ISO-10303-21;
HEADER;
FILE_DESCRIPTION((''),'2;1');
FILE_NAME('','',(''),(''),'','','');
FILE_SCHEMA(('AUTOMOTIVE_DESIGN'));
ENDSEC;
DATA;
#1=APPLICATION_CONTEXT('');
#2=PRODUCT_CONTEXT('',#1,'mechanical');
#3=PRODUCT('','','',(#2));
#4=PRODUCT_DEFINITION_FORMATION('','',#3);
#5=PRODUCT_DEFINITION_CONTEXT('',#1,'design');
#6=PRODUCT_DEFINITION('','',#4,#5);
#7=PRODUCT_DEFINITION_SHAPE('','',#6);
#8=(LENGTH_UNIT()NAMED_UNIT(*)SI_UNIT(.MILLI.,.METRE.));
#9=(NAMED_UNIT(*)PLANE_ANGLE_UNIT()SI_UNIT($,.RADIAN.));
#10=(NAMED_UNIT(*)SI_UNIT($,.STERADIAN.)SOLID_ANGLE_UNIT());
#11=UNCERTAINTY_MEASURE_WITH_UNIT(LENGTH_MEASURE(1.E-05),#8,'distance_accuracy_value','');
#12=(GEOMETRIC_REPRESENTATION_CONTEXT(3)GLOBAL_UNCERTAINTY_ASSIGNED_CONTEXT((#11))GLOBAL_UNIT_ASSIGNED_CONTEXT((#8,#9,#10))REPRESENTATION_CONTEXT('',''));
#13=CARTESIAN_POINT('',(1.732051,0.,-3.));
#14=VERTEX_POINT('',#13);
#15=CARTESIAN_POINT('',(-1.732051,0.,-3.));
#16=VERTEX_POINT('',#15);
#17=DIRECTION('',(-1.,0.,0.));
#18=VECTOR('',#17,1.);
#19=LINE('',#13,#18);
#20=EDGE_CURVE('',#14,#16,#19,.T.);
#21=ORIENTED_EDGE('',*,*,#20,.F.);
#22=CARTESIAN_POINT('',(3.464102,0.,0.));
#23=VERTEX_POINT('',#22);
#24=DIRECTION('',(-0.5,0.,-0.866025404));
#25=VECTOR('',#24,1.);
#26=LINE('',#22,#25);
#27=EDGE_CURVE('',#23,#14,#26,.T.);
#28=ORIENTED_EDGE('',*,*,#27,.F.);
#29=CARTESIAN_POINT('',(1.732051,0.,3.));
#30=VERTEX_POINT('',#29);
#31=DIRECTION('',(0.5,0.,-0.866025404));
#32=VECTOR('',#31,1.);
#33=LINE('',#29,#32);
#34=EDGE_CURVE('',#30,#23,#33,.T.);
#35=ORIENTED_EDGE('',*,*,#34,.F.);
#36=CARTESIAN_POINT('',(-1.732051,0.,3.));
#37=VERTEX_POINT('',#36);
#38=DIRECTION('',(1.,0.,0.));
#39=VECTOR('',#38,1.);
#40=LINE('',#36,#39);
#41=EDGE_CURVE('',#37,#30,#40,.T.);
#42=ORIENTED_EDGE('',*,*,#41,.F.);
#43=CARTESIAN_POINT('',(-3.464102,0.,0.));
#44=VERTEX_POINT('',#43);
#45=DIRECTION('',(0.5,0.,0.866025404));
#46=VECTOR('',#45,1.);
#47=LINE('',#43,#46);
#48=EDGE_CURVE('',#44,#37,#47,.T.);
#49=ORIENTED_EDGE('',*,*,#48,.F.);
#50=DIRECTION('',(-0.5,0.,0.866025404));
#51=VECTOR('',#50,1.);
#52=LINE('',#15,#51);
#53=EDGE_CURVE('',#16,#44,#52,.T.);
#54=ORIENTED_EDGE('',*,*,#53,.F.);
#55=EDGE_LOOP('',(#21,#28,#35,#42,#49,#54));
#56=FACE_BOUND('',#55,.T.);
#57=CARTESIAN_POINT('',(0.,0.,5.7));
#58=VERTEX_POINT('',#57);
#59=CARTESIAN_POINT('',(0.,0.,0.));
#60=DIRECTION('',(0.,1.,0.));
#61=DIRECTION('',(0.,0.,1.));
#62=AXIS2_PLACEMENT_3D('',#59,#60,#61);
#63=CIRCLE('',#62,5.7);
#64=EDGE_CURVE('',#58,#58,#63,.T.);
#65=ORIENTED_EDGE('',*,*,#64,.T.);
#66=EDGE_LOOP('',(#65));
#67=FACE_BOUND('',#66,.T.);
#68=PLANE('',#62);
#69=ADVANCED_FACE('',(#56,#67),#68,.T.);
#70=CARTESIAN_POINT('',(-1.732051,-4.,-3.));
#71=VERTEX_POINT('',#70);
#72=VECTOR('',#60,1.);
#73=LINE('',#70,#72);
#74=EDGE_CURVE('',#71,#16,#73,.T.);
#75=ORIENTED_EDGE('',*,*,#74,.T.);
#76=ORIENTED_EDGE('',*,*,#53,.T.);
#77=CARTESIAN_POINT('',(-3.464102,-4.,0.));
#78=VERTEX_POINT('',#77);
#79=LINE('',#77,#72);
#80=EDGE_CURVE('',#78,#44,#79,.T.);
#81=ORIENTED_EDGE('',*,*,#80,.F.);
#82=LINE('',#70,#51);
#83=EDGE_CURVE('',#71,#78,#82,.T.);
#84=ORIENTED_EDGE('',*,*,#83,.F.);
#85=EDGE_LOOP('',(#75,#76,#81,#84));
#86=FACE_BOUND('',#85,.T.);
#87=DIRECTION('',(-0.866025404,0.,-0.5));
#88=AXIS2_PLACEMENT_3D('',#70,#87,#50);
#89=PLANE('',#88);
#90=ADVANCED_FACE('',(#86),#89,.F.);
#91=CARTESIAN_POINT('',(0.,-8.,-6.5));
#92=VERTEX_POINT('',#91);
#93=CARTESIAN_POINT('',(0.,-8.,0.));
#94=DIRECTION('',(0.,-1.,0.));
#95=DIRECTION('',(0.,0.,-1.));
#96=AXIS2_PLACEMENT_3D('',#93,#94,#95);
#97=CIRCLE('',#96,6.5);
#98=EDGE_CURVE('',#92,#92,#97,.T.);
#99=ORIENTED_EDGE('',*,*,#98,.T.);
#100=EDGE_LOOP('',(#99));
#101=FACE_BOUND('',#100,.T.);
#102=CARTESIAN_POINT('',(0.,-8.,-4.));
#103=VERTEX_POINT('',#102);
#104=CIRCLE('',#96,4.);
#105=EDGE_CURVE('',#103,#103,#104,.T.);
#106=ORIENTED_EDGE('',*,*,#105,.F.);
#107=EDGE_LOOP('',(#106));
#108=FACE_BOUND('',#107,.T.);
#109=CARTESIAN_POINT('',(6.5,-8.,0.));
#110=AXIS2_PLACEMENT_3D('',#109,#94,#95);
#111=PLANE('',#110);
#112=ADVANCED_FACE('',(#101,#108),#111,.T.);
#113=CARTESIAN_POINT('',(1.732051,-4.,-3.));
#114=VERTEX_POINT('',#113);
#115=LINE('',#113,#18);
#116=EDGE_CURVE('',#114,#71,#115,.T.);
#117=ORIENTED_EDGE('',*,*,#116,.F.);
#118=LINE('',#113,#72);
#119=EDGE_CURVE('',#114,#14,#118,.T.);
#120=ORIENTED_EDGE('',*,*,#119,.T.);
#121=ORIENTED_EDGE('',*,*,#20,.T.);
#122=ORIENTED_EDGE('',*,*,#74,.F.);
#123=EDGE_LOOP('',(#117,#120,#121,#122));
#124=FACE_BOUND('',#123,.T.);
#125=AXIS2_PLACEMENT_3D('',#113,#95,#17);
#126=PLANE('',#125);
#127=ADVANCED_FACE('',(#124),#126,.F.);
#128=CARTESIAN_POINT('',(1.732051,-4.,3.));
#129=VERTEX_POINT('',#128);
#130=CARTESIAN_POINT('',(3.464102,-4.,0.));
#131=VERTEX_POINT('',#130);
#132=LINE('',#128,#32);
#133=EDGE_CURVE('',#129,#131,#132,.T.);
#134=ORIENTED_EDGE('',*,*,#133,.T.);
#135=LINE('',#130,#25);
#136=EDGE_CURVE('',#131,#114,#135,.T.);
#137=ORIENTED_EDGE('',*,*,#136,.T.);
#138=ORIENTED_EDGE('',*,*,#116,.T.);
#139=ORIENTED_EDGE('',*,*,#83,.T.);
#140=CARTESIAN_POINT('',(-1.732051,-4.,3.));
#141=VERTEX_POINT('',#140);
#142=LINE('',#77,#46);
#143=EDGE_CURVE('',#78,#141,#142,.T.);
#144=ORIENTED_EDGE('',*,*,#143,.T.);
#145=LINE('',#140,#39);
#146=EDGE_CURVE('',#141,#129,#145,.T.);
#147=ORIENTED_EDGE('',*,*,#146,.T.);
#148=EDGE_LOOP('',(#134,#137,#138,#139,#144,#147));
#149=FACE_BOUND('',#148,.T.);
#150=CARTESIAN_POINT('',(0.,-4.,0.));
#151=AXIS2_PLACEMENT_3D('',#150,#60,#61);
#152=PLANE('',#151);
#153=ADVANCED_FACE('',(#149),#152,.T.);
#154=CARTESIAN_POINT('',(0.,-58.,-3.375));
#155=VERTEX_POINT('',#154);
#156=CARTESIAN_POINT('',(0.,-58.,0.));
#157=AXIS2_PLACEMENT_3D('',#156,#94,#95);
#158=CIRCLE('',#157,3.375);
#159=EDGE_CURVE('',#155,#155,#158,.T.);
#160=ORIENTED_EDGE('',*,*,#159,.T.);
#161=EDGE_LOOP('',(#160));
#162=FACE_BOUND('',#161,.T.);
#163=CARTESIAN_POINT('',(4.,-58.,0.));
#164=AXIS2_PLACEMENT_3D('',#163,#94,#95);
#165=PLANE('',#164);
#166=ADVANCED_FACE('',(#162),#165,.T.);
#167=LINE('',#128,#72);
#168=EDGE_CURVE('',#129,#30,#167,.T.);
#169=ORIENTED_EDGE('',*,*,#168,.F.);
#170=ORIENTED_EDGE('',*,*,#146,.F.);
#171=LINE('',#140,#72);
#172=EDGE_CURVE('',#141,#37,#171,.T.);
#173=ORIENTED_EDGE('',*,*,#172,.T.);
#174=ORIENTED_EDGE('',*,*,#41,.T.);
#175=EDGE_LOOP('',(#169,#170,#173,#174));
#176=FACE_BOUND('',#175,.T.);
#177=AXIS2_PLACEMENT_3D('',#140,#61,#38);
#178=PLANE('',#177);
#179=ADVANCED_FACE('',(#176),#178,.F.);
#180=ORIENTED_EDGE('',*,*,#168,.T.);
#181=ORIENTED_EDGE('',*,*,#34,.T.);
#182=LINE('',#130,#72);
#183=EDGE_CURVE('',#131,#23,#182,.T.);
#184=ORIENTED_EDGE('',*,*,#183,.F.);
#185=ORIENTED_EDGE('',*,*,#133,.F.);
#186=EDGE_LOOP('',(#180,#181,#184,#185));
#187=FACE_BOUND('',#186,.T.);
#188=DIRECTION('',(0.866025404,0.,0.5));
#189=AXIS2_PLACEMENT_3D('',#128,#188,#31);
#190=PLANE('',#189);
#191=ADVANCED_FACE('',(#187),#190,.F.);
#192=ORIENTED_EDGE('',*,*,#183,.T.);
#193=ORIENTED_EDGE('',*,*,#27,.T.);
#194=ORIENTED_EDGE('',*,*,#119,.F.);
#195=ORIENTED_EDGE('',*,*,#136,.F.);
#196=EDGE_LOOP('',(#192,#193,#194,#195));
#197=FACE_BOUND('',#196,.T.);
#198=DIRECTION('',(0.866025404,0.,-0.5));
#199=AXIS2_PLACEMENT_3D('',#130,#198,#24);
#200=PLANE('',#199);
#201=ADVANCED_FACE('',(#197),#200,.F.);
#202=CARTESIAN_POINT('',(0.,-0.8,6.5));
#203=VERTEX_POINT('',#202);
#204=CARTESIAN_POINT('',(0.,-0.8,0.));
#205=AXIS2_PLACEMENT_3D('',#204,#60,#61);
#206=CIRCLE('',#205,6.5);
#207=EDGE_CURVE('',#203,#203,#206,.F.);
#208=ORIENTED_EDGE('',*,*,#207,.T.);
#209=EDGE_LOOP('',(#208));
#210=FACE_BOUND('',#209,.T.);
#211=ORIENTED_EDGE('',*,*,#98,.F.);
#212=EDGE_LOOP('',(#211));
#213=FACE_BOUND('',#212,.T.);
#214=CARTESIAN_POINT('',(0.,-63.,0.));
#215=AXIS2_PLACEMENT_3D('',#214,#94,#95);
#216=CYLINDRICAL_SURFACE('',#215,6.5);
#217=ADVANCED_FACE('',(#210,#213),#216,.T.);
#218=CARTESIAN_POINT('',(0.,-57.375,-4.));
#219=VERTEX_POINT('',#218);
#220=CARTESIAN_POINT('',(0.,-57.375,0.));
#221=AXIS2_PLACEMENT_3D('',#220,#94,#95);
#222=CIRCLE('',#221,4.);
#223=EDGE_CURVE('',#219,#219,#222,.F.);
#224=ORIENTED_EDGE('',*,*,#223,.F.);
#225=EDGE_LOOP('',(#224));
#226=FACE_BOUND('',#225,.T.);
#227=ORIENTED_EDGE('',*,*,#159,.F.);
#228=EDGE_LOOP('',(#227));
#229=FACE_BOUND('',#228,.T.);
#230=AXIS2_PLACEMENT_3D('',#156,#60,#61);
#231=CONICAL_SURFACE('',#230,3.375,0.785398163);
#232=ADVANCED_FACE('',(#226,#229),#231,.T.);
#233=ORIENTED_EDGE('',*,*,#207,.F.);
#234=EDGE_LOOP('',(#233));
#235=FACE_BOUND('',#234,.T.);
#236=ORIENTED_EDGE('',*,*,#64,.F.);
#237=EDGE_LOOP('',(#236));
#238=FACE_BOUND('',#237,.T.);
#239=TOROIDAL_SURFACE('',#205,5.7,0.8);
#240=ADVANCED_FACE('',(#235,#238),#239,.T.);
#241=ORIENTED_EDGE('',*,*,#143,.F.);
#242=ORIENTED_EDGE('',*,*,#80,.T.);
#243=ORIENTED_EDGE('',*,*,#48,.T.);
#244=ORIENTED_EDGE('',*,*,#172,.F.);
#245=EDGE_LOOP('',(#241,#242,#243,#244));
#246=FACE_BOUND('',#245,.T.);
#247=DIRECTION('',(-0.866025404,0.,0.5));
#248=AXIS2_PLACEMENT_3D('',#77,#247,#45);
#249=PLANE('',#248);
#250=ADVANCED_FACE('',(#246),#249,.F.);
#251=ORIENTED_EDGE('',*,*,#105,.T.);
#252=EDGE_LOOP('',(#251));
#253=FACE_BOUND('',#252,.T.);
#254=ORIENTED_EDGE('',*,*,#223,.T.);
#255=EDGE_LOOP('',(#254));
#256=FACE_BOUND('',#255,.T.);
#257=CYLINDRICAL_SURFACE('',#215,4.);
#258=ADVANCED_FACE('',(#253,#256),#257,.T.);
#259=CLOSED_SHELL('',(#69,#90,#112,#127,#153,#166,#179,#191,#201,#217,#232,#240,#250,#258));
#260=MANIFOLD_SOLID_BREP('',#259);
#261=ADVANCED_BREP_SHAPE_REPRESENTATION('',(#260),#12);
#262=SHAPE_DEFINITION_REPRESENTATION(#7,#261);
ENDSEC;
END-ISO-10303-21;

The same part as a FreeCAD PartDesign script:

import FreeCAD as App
import Part
import Sketcher
Q = App.Units.Quantity


def edges_at(feature, points):
    """Names of the edges that pass closest to the given points."""
    edges = feature.Shape.Edges
    near = lambda p: min(range(len(edges)), key=lambda i: edges[i].distToShape(Part.Vertex(*p))[0])
    return sorted({f"Edge{near(p) + 1}" for p in points})

doc = App.newDocument("Part")
body = doc.addObject("PartDesign::Body", "Body")

sketch1 = body.newObject("Sketcher::SketchObject", "Sketch")
sketch1.AttachmentSupport = (doc.getObject("XY_Plane"), [""])
sketch1.MapMode = "FlatFace"
sketch1.addGeometry([
    Part.LineSegment(App.Vector(6.5, 0, 0), App.Vector(0, 0, 0)),
    Part.LineSegment(App.Vector(0, 0, 0), App.Vector(0, -58, 0)),
    Part.LineSegment(App.Vector(0, -58, 0), App.Vector(4, -58, 0)),
    Part.LineSegment(App.Vector(4, -58, 0), App.Vector(4, -8, 0)),
    Part.LineSegment(App.Vector(4, -8, 0), App.Vector(6.5, -8, 0)),
    Part.LineSegment(App.Vector(6.5, -8, 0), App.Vector(6.5, 0, 0)),
], False)
sketch1.addConstraint([
    Sketcher.Constraint("Coincident", 0, 2, 1, 1),
    Sketcher.Constraint("Coincident", 1, 2, 2, 1),
    Sketcher.Constraint("Coincident", 2, 2, 3, 1),
    Sketcher.Constraint("Coincident", 3, 2, 4, 1),
    Sketcher.Constraint("Coincident", 4, 2, 5, 1),
    Sketcher.Constraint("Coincident", 5, 2, 0, 1),
    Sketcher.Constraint("Horizontal", 0),
    Sketcher.Constraint("Vertical", 1),
    Sketcher.Constraint("Horizontal", 2),
    Sketcher.Constraint("Vertical", 3),
    Sketcher.Constraint("Horizontal", 4),
    Sketcher.Constraint("Vertical", 5),
    Sketcher.Constraint("Coincident", 0, 2, -1, 1),
    Sketcher.Constraint("DistanceX", 2, 1, 2, 2, Q("4 mm")),
    Sketcher.Constraint("DistanceY", 1, 2, 1, 1, Q("58 mm")),
    Sketcher.Constraint("DistanceY", 3, 1, 3, 2, Q("50 mm")),
    Sketcher.Constraint("DistanceX", 0, 2, 0, 1, Q("6.5 mm")),
])
revolution = body.newObject("PartDesign::Revolution", "Revolution")
revolution.Profile = sketch1
revolution.ReferenceAxis = (sketch1, ["V_Axis"])
revolution.Angle = 360

sketch2 = body.newObject("Sketcher::SketchObject", "Sketch001")
sketch2.AttachmentSupport = (doc.getObject("XZ_Plane"), [""])
sketch2.MapMode = "FlatFace"
sketch2.addGeometry([
    Part.LineSegment(App.Vector(3.5, 0, 0), App.Vector(1.7, -3, 0)),
    Part.LineSegment(App.Vector(1.7, -3, 0), App.Vector(-1.7, -3, 0)),
    Part.LineSegment(App.Vector(-1.7, -3, 0), App.Vector(-3.5, 0, 0)),
    Part.LineSegment(App.Vector(-3.5, 0, 0), App.Vector(-1.7, 3, 0)),
    Part.LineSegment(App.Vector(-1.7, 3, 0), App.Vector(1.7, 3, 0)),
    Part.LineSegment(App.Vector(1.7, 3, 0), App.Vector(3.5, 0, 0)),
], False)
sketch2.addConstraint([
    Sketcher.Constraint("Coincident", 0, 2, 1, 1),
    Sketcher.Constraint("Coincident", 1, 2, 2, 1),
    Sketcher.Constraint("Coincident", 2, 2, 3, 1),
    Sketcher.Constraint("Coincident", 3, 2, 4, 1),
    Sketcher.Constraint("Coincident", 4, 2, 5, 1),
    Sketcher.Constraint("Coincident", 5, 2, 0, 1),
    Sketcher.Constraint("Horizontal", 1),
    Sketcher.Constraint("Horizontal", 4),
    Sketcher.Constraint("Symmetric", 0, 2, 3, 2, -1, 1),
    Sketcher.Constraint("Symmetric", 2, 2, 5, 2, -1, 1),
    Sketcher.Constraint("PointOnObject", 2, 2, -1),
    Sketcher.Constraint("Parallel", 2, 5),
    Sketcher.Constraint("Vertical", 1, 2, 3, 2),
    Sketcher.Constraint("Angle", 0, Q("-120 deg")),
    Sketcher.Constraint("DistanceY", 0, 2, -1, 1, Q("3 mm")),
    Sketcher.Constraint("DistanceX", 1, 2, 1, 1, Q("3.464102 mm")),
])
pocket1 = body.newObject("PartDesign::Pocket", "Pocket")
pocket1.Profile = sketch2
pocket1.Length = 4
pocket1.Reversed = True
doc.recompute()

fillet = body.newObject("PartDesign::Fillet", "Fillet")
fillet.Base = (pocket1, edges_at(pocket1, [(0, 0, 6.5)]))
fillet.Radius = 0.8
doc.recompute()

chamfer = body.newObject("PartDesign::Chamfer", "Chamfer")
chamfer.Base = (fillet, edges_at(fillet, [(0, -58, 4)]))
chamfer.Size = 0.625

doc.recompute()
